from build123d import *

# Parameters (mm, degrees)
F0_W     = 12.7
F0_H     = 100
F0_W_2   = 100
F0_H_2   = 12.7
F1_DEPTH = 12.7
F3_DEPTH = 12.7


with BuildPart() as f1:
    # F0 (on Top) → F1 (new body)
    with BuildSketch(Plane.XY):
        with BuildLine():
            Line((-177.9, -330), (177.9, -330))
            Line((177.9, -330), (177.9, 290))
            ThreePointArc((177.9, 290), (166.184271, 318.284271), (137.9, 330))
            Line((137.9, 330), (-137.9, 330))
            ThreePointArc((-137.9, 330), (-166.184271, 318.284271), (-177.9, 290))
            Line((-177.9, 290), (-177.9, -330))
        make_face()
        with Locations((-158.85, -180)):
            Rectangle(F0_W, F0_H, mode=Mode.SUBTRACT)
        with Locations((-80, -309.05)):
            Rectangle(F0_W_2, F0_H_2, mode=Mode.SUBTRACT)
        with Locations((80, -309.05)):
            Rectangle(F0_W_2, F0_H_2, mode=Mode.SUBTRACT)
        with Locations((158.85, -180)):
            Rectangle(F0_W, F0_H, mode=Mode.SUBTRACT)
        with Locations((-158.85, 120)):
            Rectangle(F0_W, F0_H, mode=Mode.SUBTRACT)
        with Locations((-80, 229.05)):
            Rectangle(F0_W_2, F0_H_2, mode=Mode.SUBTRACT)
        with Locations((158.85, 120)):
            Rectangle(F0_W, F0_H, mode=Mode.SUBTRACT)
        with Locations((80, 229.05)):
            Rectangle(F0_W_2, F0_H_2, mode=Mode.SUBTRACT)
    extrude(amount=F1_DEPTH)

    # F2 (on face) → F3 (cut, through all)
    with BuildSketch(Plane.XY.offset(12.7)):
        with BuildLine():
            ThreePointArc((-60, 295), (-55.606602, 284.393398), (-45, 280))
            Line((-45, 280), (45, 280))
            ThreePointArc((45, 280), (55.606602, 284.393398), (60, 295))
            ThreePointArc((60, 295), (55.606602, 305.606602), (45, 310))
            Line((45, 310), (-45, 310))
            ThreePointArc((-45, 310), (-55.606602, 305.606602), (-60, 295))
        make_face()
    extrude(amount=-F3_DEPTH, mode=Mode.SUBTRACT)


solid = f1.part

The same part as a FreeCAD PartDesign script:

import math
import FreeCAD as App
import Part
import Sketcher

doc = App.newDocument("Part")
body = doc.addObject("PartDesign::Body", "Body")

sketch1 = body.newObject("Sketcher::SketchObject", "Sketch")
sketch1.AttachmentSupport = (doc.getObject("XY_Plane"), [""])
sketch1.MapMode = "FlatFace"
sketch1.addGeometry([
    Part.LineSegment(App.Vector(-178, -330, 0), App.Vector(178, -330, 0)),
    Part.LineSegment(App.Vector(178, -330, 0), App.Vector(178, 290, 0)),
    Part.ArcOfCircle(Part.Circle(App.Vector(138, 290, 0), App.Vector(0, 0, 1), 40), math.radians(0), math.radians(90)),
    Part.LineSegment(App.Vector(138, 330, 0), App.Vector(-138, 330, 0)),
    Part.ArcOfCircle(Part.Circle(App.Vector(-138, 290, 0), App.Vector(0, 0, 1), 40), math.radians(90), math.radians(180)),
    Part.LineSegment(App.Vector(-178, 290, 0), App.Vector(-178, -330, 0)),
    Part.LineSegment(App.Vector(-152, -230, 0), App.Vector(-165, -230, 0)),
    Part.LineSegment(App.Vector(-165, -230, 0), App.Vector(-165, -130, 0)),
    Part.LineSegment(App.Vector(-165, -130, 0), App.Vector(-152, -130, 0)),
    Part.LineSegment(App.Vector(-152, -130, 0), App.Vector(-152, -230, 0)),
    Part.LineSegment(App.Vector(-30, -315, 0), App.Vector(-130, -315, 0)),
    Part.LineSegment(App.Vector(-130, -315, 0), App.Vector(-130, -303, 0)),
    Part.LineSegment(App.Vector(-130, -303, 0), App.Vector(-30, -303, 0)),
    Part.LineSegment(App.Vector(-30, -303, 0), App.Vector(-30, -315, 0)),
    Part.LineSegment(App.Vector(130, -315, 0), App.Vector(30, -315, 0)),
    Part.LineSegment(App.Vector(30, -315, 0), App.Vector(30, -303, 0)),
    Part.LineSegment(App.Vector(30, -303, 0), App.Vector(130, -303, 0)),
    Part.LineSegment(App.Vector(130, -303, 0), App.Vector(130, -315, 0)),
    Part.LineSegment(App.Vector(165, -230, 0), App.Vector(152, -230, 0)),
    Part.LineSegment(App.Vector(152, -230, 0), App.Vector(152, -130, 0)),
    Part.LineSegment(App.Vector(152, -130, 0), App.Vector(165, -130, 0)),
    Part.LineSegment(App.Vector(165, -130, 0), App.Vector(165, -230, 0)),
    Part.LineSegment(App.Vector(-152, 70, 0), App.Vector(-165, 70, 0)),
    Part.LineSegment(App.Vector(-165, 70, 0), App.Vector(-165, 170, 0)),
    Part.LineSegment(App.Vector(-165, 170, 0), App.Vector(-152, 170, 0)),
    Part.LineSegment(App.Vector(-152, 170, 0), App.Vector(-152, 70, 0)),
    Part.LineSegment(App.Vector(-30, 223, 0), App.Vector(-130, 223, 0)),
    Part.LineSegment(App.Vector(-130, 223, 0), App.Vector(-130, 235, 0)),
    Part.LineSegment(App.Vector(-130, 235, 0), App.Vector(-30, 235, 0)),
    Part.LineSegment(App.Vector(-30, 235, 0), App.Vector(-30, 223, 0)),
    Part.LineSegment(App.Vector(130, 223, 0), App.Vector(30, 223, 0)),
    Part.LineSegment(App.Vector(30, 223, 0), App.Vector(30, 235, 0)),
    Part.LineSegment(App.Vector(30, 235, 0), App.Vector(130, 235, 0)),
    Part.LineSegment(App.Vector(130, 235, 0), App.Vector(130, 223, 0)),
    Part.LineSegment(App.Vector(165, 70, 0), App.Vector(152, 70, 0)),
    Part.LineSegment(App.Vector(152, 70, 0), App.Vector(152, 170, 0)),
    Part.LineSegment(App.Vector(152, 170, 0), App.Vector(165, 170, 0)),
    Part.LineSegment(App.Vector(165, 170, 0), App.Vector(165, 70, 0)),
], False)
sketch1.addConstraint([
    Sketcher.Constraint("Coincident", 0, 2, 1, 1),
    Sketcher.Constraint("Tangent", 1, 2, 2, 1),
    Sketcher.Constraint("Tangent", 2, 2, 3, 1),
    Sketcher.Constraint("Tangent", 3, 2, 4, 1),
    Sketcher.Constraint("Tangent", 4, 2, 5, 1),
    Sketcher.Constraint("Coincident", 5, 2, 0, 1),
    Sketcher.Constraint("Coincident", 6, 2, 7, 1),
    Sketcher.Constraint("Coincident", 7, 2, 8, 1),
    Sketcher.Constraint("Coincident", 8, 2, 9, 1),
    Sketcher.Constraint("Coincident", 9, 2, 6, 1),
    Sketcher.Constraint("Coincident", 10, 2, 11, 1),
    Sketcher.Constraint("Coincident", 11, 2, 12, 1),
    Sketcher.Constraint("Coincident", 12, 2, 13, 1),
    Sketcher.Constraint("Coincident", 13, 2, 10, 1),
    Sketcher.Constraint("Coincident", 14, 2, 15, 1),
    Sketcher.Constraint("Coincident", 15, 2, 16, 1),
    Sketcher.Constraint("Coincident", 16, 2, 17, 1),
    Sketcher.Constraint("Coincident", 17, 2, 14, 1),
    Sketcher.Constraint("Coincident", 18, 2, 19, 1),
    Sketcher.Constraint("Coincident", 19, 2, 20, 1),
    Sketcher.Constraint("Coincident", 20, 2, 21, 1),
    Sketcher.Constraint("Coincident", 21, 2, 18, 1),
    Sketcher.Constraint("Coincident", 22, 2, 23, 1),
    Sketcher.Constraint("Coincident", 23, 2, 24, 1),
    Sketcher.Constraint("Coincident", 24, 2, 25, 1),
    Sketcher.Constraint("Coincident", 25, 2, 22, 1),
    Sketcher.Constraint("Coincident", 26, 2, 27, 1),
    Sketcher.Constraint("Coincident", 27, 2, 28, 1),
    Sketcher.Constraint("Coincident", 28, 2, 29, 1),
    Sketcher.Constraint("Coincident", 29, 2, 26, 1),
    Sketcher.Constraint("Coincident", 30, 2, 31, 1),
    Sketcher.Constraint("Coincident", 31, 2, 32, 1),
    Sketcher.Constraint("Coincident", 32, 2, 33, 1),
    Sketcher.Constraint("Coincident", 33, 2, 30, 1),
    Sketcher.Constraint("Coincident", 34, 2, 35, 1),
    Sketcher.Constraint("Coincident", 35, 2, 36, 1),
    Sketcher.Constraint("Coincident", 36, 2, 37, 1),
    Sketcher.Constraint("Coincident", 37, 2, 34, 1),
    Sketcher.Constraint("Horizontal", 0),
    Sketcher.Constraint("Vertical", 1),
    Sketcher.Constraint("Horizontal", 3),
    Sketcher.Constraint("Vertical", 5),
    Sketcher.Constraint("Horizontal", 6),
    Sketcher.Constraint("Vertical", 7),
    Sketcher.Constraint("Horizontal", 8),
    Sketcher.Constraint("Vertical", 9),
    Sketcher.Constraint("Horizontal", 10),
    Sketcher.Constraint("Vertical", 11),
    Sketcher.Constraint("Horizontal", 12),
    Sketcher.Constraint("Vertical", 13),
    Sketcher.Constraint("Horizontal", 14),
    Sketcher.Constraint("Vertical", 15),
    Sketcher.Constraint("Horizontal", 16),
    Sketcher.Constraint("Vertical", 17),
    Sketcher.Constraint("Horizontal", 18),
    Sketcher.Constraint("Vertical", 19),
    Sketcher.Constraint("Horizontal", 20),
    Sketcher.Constraint("Vertical", 21),
    Sketcher.Constraint("Horizontal", 22),
    Sketcher.Constraint("Vertical", 23),
    Sketcher.Constraint("Horizontal", 24),
    Sketcher.Constraint("Vertical", 25),
    Sketcher.Constraint("Horizontal", 26),
    Sketcher.Constraint("Vertical", 27),
    Sketcher.Constraint("Horizontal", 28),
    Sketcher.Constraint("Vertical", 29),
    Sketcher.Constraint("Horizontal", 30),
    Sketcher.Constraint("Vertical", 31),
    Sketcher.Constraint("Horizontal", 32),
    Sketcher.Constraint("Vertical", 33),
    Sketcher.Constraint("Horizontal", 34),
    Sketcher.Constraint("Vertical", 35),
    Sketcher.Constraint("Horizontal", 36),
    Sketcher.Constraint("Vertical", 37),
    Sketcher.Constraint("Equal", 2, 4),
    Sketcher.Constraint("Symmetric", 13, 2, 14, 2, -2),
    Sketcher.Constraint("Symmetric", 11, 2, 16, 2, -2),
    Sketcher.Constraint("Symmetric", 9, 2, 18, 2, -2),
    Sketcher.Constraint("Symmetric", 7, 2, 20, 2, -2),
    Sketcher.Constraint("Symmetric", 29, 2, 30, 2, -2),
    Sketcher.Constraint("Symmetric", 27, 2, 32, 2, -2),
    Sketcher.Constraint("Symmetric", 25, 2, 34, 2, -2),
    Sketcher.Constraint("Symmetric", 23, 2, 36, 2, -2),
    Sketcher.Constraint("Vertical", 7, 2, 22, 2),
    Sketcher.Constraint("Vertical", 9, 2, 24, 2),
    Sketcher.Constraint("Vertical", 11, 2, 26, 2),
    Sketcher.Constraint("Vertical", 13, 2, 28, 2),
    Sketcher.Constraint("Equal", 32, 7),
    Sketcher.Constraint("Equal", 36, 11),
    Sketcher.Constraint("Equal", 21, 23),
    Sketcher.Constraint("Equal", 17, 27),
    Sketcher.Constraint("Radius", 2, 40.000001),
    Sketcher.Constraint("DistanceX", 10, 2, 10, 1, 100.0),
    Sketcher.Constraint("DistanceY", 1, 1, 1, 2, 620.0),
    Sketcher.Constraint("DistanceX", 0, 1, 0, 2, 355.8),
    Sketcher.Constraint("DistanceX", 6, 2, 6, 1, 12.7),
    Sketcher.Constraint("DistanceY", -1, 1, 2, 3, 289.999999),
    Sketcher.Constraint("DistanceY", 6, 2, -1, 1, 230.0),
    Sketcher.Constraint("DistanceX", 10, 2, -1, 1, 130.0),
    Sketcher.Constraint("DistanceY", -1, 1, 22, 2, 70.0),
    Sketcher.Constraint("DistanceX", -1, 1, 2, 3, 137.899999),
    Sketcher.Constraint("DistanceX", 6, 2, -1, 1, 165.2),
    Sketcher.Constraint("DistanceY", 10, 2, -1, 1, 315.4),
    Sketcher.Constraint("DistanceY", -1, 1, 26, 2, 222.7),
])
pad1 = body.newObject("PartDesign::Pad", "Pad")
pad1.Profile = sketch1
pad1.Length = 12.7

sketch2 = body.newObject("Sketcher::SketchObject", "Sketch001")
sketch2.AttachmentSupport = (doc.getObject("XY_Plane"), [""])
sketch2.MapMode = "FlatFace"
sketch2.AttachmentOffset = App.Placement(App.Vector(0, 0, 12.7), App.Rotation())
sketch2.addGeometry([
    Part.ArcOfCircle(Part.Circle(App.Vector(-45, 295, 0), App.Vector(0, 0, 1), 15), math.radians(180), math.radians(270)),
    Part.LineSegment(App.Vector(-45, 280, 0), App.Vector(45, 280, 0)),
    Part.ArcOfCircle(Part.Circle(App.Vector(45, 295, 0), App.Vector(0, 0, 1), 15), math.radians(-90), math.radians(0)),
    Part.ArcOfCircle(Part.Circle(App.Vector(45, 295, 0), App.Vector(0, 0, 1), 15), math.radians(0), math.radians(90)),
    Part.LineSegment(App.Vector(45, 310, 0), App.Vector(-45, 310, 0)),
    Part.ArcOfCircle(Part.Circle(App.Vector(-45, 295, 0), App.Vector(0, 0, 1), 15), math.radians(90), math.radians(180)),
], False)
sketch2.addConstraint([
    Sketcher.Constraint("Tangent", 0, 2, 1, 1),
    Sketcher.Constraint("Tangent", 1, 2, 2, 1),
    Sketcher.Constraint("Tangent", 2, 2, 3, 1),
    Sketcher.Constraint("Tangent", 3, 2, 4, 1),
    Sketcher.Constraint("Tangent", 4, 2, 5, 1),
    Sketcher.Constraint("Tangent", 5, 2, 0, 1),
    Sketcher.Constraint("Horizontal", 1),
    Sketcher.Constraint("Horizontal", 4),
    Sketcher.Constraint("Equal", 0, 2),
    Sketcher.Constraint("Equal", 2, 3),
    Sketcher.Constraint("Symmetric", 2, 2, 5, 2, -2),
    Sketcher.Constraint("Horizontal", 5, 3, 2, 2),
    Sketcher.Constraint("Radius", 0, 14.999999),
    Sketcher.Constraint("DistanceX", 1, 1, 1, 2, 90.0),
    Sketcher.Constraint("DistanceY", -1, 1, 0, 3, 294.999999),
])
pocket1 = body.newObject("PartDesign::Pocket", "Pocket")
pocket1.Profile = sketch2
pocket1.Type = "ThroughAll"

doc.recompute()
